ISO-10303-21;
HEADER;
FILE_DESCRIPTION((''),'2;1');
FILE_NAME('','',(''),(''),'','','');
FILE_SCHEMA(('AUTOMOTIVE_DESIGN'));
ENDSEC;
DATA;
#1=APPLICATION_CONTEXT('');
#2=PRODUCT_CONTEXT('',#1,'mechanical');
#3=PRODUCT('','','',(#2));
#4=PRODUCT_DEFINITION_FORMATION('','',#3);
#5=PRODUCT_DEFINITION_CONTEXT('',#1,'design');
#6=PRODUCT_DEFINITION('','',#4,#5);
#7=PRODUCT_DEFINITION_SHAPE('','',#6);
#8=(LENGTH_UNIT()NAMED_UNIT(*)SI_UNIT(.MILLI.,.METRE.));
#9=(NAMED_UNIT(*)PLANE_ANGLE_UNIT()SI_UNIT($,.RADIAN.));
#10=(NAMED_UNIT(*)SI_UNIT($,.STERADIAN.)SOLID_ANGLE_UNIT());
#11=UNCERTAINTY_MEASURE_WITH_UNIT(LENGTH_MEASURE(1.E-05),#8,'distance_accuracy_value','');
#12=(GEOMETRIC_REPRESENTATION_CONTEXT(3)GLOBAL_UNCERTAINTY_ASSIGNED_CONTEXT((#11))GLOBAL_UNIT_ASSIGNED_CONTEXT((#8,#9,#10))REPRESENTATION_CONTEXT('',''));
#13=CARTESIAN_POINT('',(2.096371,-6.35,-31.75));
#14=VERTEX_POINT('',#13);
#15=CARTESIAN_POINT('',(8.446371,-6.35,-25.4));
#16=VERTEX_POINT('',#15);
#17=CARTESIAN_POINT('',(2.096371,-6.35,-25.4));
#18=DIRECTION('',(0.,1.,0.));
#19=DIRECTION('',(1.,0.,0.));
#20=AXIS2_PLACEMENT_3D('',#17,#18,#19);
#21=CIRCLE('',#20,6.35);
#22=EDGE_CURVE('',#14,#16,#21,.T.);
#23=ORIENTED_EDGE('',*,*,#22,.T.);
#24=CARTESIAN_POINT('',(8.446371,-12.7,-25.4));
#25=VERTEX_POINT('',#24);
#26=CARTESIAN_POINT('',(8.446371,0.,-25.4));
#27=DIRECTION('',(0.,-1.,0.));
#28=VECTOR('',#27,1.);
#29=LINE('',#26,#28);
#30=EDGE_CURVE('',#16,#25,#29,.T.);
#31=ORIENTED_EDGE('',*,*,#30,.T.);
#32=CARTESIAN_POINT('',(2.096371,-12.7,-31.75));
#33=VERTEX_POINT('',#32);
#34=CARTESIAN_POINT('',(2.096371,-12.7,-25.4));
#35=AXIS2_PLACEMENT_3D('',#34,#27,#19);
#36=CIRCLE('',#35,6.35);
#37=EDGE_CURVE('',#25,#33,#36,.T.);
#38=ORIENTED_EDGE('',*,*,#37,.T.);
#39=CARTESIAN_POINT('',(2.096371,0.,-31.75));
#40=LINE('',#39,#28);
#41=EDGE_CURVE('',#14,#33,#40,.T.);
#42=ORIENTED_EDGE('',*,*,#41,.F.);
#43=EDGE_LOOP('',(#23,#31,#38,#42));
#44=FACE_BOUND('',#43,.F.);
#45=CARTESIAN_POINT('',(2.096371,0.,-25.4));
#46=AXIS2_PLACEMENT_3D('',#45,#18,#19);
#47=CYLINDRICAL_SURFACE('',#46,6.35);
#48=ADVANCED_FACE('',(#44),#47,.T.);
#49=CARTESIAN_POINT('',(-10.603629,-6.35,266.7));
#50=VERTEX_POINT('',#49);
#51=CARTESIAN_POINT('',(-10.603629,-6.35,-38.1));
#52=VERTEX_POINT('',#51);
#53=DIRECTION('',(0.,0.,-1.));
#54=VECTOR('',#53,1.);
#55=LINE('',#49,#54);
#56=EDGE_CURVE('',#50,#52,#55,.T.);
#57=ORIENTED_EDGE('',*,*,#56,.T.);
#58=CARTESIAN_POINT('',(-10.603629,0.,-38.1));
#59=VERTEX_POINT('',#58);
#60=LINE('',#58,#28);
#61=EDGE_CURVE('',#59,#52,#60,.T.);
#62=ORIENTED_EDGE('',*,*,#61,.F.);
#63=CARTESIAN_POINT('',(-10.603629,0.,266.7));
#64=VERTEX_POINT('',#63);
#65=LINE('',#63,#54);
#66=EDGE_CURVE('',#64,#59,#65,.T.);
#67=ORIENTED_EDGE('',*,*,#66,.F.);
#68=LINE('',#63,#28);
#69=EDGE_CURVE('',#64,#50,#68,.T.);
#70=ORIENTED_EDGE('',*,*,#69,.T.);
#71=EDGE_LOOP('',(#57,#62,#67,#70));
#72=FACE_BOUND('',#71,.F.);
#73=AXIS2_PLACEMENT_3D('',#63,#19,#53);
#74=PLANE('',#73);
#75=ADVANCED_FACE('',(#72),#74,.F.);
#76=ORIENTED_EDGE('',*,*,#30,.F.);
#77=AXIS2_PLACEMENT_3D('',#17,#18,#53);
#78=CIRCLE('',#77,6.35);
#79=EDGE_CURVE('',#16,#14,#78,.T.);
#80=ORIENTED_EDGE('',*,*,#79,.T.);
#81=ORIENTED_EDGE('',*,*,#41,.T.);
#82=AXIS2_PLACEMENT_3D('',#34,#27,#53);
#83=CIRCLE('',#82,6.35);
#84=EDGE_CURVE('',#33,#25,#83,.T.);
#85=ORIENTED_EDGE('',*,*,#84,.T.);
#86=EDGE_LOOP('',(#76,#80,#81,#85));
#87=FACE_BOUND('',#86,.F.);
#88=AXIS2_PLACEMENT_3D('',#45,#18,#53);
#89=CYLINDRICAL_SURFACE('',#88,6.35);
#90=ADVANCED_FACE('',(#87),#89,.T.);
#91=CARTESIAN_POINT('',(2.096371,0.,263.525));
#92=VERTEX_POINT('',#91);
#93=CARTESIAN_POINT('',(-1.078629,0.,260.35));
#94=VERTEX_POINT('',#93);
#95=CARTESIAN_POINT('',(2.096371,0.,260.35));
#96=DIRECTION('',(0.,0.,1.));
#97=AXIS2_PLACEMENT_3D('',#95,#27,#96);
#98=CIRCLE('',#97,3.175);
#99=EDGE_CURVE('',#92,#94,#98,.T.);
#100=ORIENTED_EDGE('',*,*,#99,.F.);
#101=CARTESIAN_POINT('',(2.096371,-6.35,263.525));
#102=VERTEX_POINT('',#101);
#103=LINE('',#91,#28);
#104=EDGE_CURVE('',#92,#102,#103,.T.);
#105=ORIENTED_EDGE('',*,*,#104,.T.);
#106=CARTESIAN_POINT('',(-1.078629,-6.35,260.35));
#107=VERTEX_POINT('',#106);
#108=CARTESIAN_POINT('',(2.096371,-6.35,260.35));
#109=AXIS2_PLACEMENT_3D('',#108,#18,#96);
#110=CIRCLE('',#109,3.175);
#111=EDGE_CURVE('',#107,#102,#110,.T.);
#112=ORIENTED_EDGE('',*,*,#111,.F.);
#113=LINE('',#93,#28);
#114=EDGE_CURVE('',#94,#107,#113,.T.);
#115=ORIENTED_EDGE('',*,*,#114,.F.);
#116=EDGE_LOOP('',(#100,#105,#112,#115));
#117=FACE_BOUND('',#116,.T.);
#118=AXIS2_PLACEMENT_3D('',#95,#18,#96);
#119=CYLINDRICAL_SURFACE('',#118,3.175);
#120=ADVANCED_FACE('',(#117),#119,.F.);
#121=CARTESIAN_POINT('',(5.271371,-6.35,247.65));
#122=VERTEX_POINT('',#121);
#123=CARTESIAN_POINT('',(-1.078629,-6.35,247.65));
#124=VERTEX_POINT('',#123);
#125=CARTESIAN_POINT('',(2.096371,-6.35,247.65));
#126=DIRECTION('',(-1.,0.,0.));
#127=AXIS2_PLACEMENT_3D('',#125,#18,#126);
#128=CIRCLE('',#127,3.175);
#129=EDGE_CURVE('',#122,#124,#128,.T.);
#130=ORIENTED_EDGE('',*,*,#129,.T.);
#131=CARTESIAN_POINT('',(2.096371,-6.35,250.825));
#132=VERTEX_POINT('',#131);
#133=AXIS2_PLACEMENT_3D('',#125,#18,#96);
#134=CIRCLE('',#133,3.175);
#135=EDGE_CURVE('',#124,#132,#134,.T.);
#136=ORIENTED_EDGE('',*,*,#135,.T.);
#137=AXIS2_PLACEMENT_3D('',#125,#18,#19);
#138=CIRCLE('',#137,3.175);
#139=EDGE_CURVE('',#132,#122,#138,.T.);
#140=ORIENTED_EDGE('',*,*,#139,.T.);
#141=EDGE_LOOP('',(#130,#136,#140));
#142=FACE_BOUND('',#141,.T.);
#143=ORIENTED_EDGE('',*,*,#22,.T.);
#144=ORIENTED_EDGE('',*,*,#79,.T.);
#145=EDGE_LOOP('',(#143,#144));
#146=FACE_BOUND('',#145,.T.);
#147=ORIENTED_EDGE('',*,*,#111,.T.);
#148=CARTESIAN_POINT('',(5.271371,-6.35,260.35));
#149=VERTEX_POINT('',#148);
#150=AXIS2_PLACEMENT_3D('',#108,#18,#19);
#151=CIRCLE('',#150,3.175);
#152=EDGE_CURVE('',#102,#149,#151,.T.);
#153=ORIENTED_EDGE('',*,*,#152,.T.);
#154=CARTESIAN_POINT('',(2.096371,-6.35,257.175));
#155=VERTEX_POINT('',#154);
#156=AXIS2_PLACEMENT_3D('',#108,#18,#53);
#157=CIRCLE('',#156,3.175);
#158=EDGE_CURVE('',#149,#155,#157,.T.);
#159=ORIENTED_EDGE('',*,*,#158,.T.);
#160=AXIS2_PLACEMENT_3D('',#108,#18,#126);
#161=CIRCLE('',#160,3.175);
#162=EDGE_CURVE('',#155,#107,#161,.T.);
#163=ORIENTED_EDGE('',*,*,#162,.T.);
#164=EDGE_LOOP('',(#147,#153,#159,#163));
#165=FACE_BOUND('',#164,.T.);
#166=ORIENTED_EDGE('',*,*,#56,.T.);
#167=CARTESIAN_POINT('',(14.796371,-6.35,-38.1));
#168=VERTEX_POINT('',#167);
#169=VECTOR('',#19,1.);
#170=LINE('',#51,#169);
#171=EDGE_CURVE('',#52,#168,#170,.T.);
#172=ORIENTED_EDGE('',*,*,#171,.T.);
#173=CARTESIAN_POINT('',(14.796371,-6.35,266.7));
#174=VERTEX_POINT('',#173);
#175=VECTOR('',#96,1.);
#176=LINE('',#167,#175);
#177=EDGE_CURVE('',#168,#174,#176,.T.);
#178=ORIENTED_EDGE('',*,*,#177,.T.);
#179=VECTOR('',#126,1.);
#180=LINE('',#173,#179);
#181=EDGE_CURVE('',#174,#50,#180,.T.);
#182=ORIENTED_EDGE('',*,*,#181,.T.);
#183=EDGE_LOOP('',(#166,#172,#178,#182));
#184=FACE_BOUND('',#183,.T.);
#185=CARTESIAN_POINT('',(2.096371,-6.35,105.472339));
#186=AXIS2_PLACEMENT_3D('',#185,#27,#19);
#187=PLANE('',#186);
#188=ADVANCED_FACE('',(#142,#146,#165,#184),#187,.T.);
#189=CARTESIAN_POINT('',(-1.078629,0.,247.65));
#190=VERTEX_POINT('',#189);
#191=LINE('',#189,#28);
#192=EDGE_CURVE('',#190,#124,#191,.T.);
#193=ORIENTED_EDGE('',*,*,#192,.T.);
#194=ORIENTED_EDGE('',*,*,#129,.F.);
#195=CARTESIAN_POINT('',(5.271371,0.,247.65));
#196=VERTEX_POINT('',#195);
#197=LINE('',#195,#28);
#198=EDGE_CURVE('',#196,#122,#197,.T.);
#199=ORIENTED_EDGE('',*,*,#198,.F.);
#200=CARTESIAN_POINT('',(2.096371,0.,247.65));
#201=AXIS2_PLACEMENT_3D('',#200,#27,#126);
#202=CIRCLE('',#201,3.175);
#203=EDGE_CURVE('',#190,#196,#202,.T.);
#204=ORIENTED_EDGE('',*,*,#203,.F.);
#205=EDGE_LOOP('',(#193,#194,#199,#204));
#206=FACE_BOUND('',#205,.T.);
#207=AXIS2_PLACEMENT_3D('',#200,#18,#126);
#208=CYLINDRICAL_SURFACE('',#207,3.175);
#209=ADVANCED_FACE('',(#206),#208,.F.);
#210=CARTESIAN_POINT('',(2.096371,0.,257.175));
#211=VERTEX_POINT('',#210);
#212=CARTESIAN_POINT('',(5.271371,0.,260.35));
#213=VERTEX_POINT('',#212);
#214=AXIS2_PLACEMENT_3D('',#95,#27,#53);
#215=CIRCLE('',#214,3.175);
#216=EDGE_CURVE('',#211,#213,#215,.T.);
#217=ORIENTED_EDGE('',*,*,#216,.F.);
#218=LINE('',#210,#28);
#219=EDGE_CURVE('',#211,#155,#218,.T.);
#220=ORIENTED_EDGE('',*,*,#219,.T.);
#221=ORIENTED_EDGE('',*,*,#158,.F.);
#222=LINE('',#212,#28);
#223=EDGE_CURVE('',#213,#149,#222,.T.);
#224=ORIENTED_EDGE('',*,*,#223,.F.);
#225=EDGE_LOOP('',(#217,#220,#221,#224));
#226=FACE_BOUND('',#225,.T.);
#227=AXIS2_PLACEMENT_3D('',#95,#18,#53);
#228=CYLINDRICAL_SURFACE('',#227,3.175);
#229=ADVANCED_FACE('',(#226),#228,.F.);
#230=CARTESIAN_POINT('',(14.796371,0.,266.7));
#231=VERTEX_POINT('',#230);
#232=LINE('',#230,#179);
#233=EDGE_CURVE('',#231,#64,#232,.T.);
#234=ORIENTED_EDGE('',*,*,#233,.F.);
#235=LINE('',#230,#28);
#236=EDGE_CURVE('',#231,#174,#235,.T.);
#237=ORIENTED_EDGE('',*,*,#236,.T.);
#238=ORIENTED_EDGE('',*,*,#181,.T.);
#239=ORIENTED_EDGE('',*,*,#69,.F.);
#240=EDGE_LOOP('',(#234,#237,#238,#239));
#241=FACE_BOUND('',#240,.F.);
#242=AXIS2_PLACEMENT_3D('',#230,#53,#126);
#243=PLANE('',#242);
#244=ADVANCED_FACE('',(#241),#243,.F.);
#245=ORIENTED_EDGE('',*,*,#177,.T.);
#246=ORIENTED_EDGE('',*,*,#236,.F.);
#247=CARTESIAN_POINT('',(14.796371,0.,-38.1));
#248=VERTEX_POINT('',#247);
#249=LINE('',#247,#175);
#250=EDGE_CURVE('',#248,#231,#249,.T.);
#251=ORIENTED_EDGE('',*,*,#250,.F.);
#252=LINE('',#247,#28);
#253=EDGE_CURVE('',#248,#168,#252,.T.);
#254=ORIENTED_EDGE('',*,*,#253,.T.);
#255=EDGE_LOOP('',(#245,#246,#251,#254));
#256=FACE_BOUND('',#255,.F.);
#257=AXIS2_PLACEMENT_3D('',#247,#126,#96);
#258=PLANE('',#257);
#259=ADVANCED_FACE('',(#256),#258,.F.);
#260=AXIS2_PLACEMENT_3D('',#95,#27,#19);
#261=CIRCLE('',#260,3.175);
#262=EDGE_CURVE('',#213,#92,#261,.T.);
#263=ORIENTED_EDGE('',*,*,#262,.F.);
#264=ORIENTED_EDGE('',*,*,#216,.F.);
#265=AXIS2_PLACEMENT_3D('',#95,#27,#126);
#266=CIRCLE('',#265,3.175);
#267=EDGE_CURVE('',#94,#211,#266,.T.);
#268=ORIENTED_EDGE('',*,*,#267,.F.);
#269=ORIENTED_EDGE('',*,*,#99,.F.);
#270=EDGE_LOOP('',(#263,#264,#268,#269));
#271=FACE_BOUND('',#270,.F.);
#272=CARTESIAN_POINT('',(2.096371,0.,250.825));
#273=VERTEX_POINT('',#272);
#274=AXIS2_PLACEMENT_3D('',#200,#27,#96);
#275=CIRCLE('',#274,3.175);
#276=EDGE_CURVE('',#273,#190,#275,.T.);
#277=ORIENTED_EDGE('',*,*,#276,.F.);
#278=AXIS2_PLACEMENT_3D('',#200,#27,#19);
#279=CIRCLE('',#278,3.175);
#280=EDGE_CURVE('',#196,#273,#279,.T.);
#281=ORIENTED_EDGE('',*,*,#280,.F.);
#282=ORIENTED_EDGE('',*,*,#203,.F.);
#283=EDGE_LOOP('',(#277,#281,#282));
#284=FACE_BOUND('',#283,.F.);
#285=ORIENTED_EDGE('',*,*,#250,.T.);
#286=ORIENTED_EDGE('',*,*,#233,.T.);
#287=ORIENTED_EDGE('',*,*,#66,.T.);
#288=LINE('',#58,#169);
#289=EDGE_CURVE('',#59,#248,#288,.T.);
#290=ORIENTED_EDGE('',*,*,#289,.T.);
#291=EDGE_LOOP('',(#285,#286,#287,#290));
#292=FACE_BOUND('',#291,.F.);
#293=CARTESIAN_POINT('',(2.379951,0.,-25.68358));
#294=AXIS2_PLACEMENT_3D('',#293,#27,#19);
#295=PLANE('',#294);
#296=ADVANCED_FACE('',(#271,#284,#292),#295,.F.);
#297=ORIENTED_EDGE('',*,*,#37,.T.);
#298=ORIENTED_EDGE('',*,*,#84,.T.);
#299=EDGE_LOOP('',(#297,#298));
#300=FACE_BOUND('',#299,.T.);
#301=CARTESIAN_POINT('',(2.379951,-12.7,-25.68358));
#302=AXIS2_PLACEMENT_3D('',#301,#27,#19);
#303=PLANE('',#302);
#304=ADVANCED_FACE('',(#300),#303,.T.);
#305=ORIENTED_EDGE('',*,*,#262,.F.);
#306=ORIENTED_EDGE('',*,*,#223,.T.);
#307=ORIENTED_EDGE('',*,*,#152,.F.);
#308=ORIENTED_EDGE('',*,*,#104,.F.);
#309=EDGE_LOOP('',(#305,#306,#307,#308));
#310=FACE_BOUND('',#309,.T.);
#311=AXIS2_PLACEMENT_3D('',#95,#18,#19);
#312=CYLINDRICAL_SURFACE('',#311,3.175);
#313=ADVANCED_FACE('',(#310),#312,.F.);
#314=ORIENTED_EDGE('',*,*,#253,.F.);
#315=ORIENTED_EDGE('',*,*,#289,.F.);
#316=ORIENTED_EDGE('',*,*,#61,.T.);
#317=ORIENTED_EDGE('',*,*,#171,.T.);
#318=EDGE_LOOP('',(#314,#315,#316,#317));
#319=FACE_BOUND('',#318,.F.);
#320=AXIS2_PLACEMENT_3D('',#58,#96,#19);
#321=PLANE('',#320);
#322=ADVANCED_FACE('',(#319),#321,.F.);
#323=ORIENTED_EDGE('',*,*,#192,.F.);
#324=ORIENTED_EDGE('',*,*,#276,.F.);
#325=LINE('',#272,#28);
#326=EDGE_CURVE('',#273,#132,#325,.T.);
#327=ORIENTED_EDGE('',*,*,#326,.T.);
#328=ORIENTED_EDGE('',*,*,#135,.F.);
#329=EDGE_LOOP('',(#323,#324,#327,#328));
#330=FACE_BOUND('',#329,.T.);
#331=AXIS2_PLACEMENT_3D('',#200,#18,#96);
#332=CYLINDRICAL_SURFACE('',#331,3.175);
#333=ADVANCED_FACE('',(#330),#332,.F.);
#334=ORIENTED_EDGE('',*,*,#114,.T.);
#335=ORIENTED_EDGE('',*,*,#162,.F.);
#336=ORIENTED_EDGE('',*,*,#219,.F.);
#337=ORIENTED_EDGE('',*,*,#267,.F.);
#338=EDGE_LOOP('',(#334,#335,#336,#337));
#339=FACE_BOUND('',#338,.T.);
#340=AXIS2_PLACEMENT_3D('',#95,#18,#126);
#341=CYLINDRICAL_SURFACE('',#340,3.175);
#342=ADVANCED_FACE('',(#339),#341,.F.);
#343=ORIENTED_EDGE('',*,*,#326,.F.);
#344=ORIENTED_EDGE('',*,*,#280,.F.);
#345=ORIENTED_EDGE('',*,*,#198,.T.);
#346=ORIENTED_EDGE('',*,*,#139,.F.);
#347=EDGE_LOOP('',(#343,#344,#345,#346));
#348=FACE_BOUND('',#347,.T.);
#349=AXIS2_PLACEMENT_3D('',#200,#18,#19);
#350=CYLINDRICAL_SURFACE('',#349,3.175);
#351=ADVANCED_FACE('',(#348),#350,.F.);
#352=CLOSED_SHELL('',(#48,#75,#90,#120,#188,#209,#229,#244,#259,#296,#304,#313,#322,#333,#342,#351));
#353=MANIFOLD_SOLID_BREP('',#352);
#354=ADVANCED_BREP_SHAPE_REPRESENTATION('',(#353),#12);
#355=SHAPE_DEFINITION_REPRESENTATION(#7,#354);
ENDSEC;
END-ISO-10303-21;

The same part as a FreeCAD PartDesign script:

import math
import FreeCAD as App
import Part
import Sketcher
Q = App.Units.Quantity


def add_polygon(sketch, points):
    """Adds a closed chain of lines whose ends are joined by coincident constraints."""
    first, n = sketch.GeometryCount, len(points)
    for a, b in zip(points, points[1:] + points[:1]):
        sketch.addGeometry(Part.LineSegment(App.Vector(*a, 0), App.Vector(*b, 0)), False)
    for i in range(n):
        sketch.addConstraint(Sketcher.Constraint("Coincident", first + i, 2, first + (i + 1) % n, 1))

doc = App.newDocument("Part")
params = doc.addObject("Spreadsheet::Sheet", "Params")
for row, (alias, value) in enumerate([
    ("sketch1_width", "1 in"),
    ("sketch1_height", "12 in"),
    ("pad1_length", "0.25 in"),
    ("sketch2_radius", "0.25 in"),
    ("pad2_length", "0.5 in"),
    ("sketch3_radius", "0.125 in"),
    ("pocket1_length", "0.97 in"),
], start=1):
    params.set(f"A{row}", alias)
    params.set(f"B{row}", "=" + value)
    params.setAlias(f"B{row}", alias)

body = doc.addObject("PartDesign::Body", "Body")

# Sketch on XZ plane
sketch1 = body.newObject("Sketcher::SketchObject", "Sketch")
sketch1.AttachmentSupport = (doc.getObject("XZ_Plane"), [""])
sketch1.MapMode = "FlatFace"
add_polygon(sketch1, [(-10.603629, 266.7), (-10.603629, -38.1), (14.796371, -38.1), (14.796371, 266.7)])  # lines 0-3
sketch1.addConstraint(Sketcher.Constraint("Vertical", 0))
sketch1.addConstraint(Sketcher.Constraint("Horizontal", 1))
sketch1.addConstraint(Sketcher.Constraint("Vertical", 2))
sketch1.addConstraint(Sketcher.Constraint("Horizontal", 3))
sketch1.addConstraint(Sketcher.Constraint("DistanceX", 1, 1, 1, 2, Q("1 in")))
sketch1.addConstraint(Sketcher.Constraint("DistanceY", 0, 2, 0, 1, Q("12 in")))
sketch1.addConstraint(Sketcher.Constraint("DistanceY", 0, 2, -1, 1, Q("1.5 in")))
sketch1.addConstraint(Sketcher.Constraint("DistanceX", 0, 2, -1, 1, Q("10.603629 mm")))
sketch1.setExpression("Constraints[8]", "Params.sketch1_width")
sketch1.setExpression("Constraints[9]", "Params.sketch1_height")
pad1 = body.newObject("PartDesign::Pad", "Pad")
pad1.Profile = sketch1
pad1.setExpression("Length", "Params.pad1_length")

# Sketch on XZ plane
sketch2 = body.newObject("Sketcher::SketchObject", "Sketch001")
sketch2.AttachmentSupport = (doc.getObject("XZ_Plane"), [""])
sketch2.MapMode = "FlatFace"
sketch2.addGeometry(Part.ArcOfCircle(Part.Circle(App.Vector(2.096371, -25.4, 0), App.Vector(0, 0, 1), 6.35), math.radians(0), math.radians(270)), False)
sketch2.addGeometry(Part.ArcOfCircle(Part.Circle(App.Vector(2.096371, -25.4, 0), App.Vector(0, 0, 1), 6.35), math.radians(-90), math.radians(0)), False)
sketch2.addConstraint(Sketcher.Constraint("Tangent", 0, 1, 1, 2))
sketch2.addConstraint(Sketcher.Constraint("Coincident", 1, 1, 0, 2))
sketch2.addConstraint(Sketcher.Constraint("Horizontal", 1, 3, 0, 1))
sketch2.addConstraint(Sketcher.Constraint("Vertical", 0, 3, 1, 1))
sketch2.addConstraint(Sketcher.Constraint("Radius", 0, Q("0.25 in")))
sketch2.addConstraint(Sketcher.Constraint("DistanceY", 0, 3, -1, 1, Q("1 in")))
sketch2.addConstraint(Sketcher.Constraint("DistanceX", -1, 1, 0, 3, Q("2.096371 mm")))
sketch2.setExpression("Constraints[4]", "Params.sketch2_radius")
pad2 = body.newObject("PartDesign::Pad", "Pad001")
pad2.Profile = sketch2
pad2.setExpression("Length", "Params.pad2_length")

# Sketch on XZ plane
sketch3 = body.newObject("Sketcher::SketchObject", "Sketch002")
sketch3.AttachmentSupport = (doc.getObject("XZ_Plane"), [""])
sketch3.MapMode = "FlatFace"
sketch3.addGeometry(Part.ArcOfCircle(Part.Circle(App.Vector(2.096371, 247.65, 0), App.Vector(0, 0, 1), 3.175), math.radians(0), math.radians(90)), False)
sketch3.addGeometry(Part.ArcOfCircle(Part.Circle(App.Vector(2.096371, 247.65, 0), App.Vector(0, 0, 1), 3.175), math.radians(90), math.radians(180)), False)
sketch3.addGeometry(Part.ArcOfCircle(Part.Circle(App.Vector(2.096371, 247.65, 0), App.Vector(0, 0, 1), 3.175), math.radians(180), math.radians(360)), False)
sketch3.addGeometry(Part.ArcOfCircle(Part.Circle(App.Vector(2.096371, 260.35, 0), App.Vector(0, 0, 1), 3.175), math.radians(0), math.radians(90)), False)
sketch3.addGeometry(Part.ArcOfCircle(Part.Circle(App.Vector(2.096371, 260.35, 0), App.Vector(0, 0, 1), 3.175), math.radians(90), math.radians(180)), False)
sketch3.addGeometry(Part.ArcOfCircle(Part.Circle(App.Vector(2.096371, 260.35, 0), App.Vector(0, 0, 1), 3.175), math.radians(180), math.radians(270)), False)
sketch3.addGeometry(Part.ArcOfCircle(Part.Circle(App.Vector(2.096371, 260.35, 0), App.Vector(0, 0, 1), 3.175), math.radians(-90), math.radians(0)), False)
sketch3.addConstraint(Sketcher.Constraint("Tangent", 0, 2, 1, 1))
sketch3.addConstraint(Sketcher.Constraint("Tangent", 1, 2, 2, 1))
sketch3.addConstraint(Sketcher.Constraint("Tangent", 2, 2, 0, 1))
sketch3.addConstraint(Sketcher.Constraint("Tangent", 3, 2, 4, 1))
sketch3.addConstraint(Sketcher.Constraint("Tangent", 4, 2, 5, 1))
sketch3.addConstraint(Sketcher.Constraint("Tangent", 5, 2, 6, 1))
sketch3.addConstraint(Sketcher.Constraint("Tangent", 6, 2, 3, 1))
sketch3.addConstraint(Sketcher.Constraint("Equal", 2, 3))
sketch3.addConstraint(Sketcher.Constraint("Equal", 3, 4))
sketch3.addConstraint(Sketcher.Constraint("Horizontal", 2, 3, 1, 2))
sketch3.addConstraint(Sketcher.Constraint("Horizontal", 1, 2, 2, 2))
sketch3.addConstraint(Sketcher.Constraint("Horizontal", 6, 3, 4, 2))
sketch3.addConstraint(Sketcher.Constraint("Horizontal", 4, 2, 6, 2))
sketch3.addConstraint(Sketcher.Constraint("Vertical", 2, 3, 3, 3))
sketch3.addConstraint(Sketcher.Constraint("Vertical", 6, 3, 0, 2))
sketch3.addConstraint(Sketcher.Constraint("Vertical", 0, 2, 3, 2))
sketch3.addConstraint(Sketcher.Constraint("Vertical", 3, 2, 5, 2))
sketch3.addConstraint(Sketcher.Constraint("Radius", 0, Q("0.125 in")))
sketch3.addConstraint(Sketcher.Constraint("DistanceY", 0, 3, 3, 3, Q("0.5 in")))
sketch3.addConstraint(Sketcher.Constraint("DistanceY", -1, 1, 0, 3, Q("9.75 in")))
sketch3.addConstraint(Sketcher.Constraint("DistanceX", -1, 1, 0, 3, Q("2.096371 mm")))
sketch3.setExpression("Constraints[17]", "Params.sketch3_radius")
pocket1 = body.newObject("PartDesign::Pocket", "Pocket")
pocket1.Profile = sketch3
pocket1.setExpression("Length", "Params.pocket1_length")
pocket1.Reversed = True

doc.recompute()
